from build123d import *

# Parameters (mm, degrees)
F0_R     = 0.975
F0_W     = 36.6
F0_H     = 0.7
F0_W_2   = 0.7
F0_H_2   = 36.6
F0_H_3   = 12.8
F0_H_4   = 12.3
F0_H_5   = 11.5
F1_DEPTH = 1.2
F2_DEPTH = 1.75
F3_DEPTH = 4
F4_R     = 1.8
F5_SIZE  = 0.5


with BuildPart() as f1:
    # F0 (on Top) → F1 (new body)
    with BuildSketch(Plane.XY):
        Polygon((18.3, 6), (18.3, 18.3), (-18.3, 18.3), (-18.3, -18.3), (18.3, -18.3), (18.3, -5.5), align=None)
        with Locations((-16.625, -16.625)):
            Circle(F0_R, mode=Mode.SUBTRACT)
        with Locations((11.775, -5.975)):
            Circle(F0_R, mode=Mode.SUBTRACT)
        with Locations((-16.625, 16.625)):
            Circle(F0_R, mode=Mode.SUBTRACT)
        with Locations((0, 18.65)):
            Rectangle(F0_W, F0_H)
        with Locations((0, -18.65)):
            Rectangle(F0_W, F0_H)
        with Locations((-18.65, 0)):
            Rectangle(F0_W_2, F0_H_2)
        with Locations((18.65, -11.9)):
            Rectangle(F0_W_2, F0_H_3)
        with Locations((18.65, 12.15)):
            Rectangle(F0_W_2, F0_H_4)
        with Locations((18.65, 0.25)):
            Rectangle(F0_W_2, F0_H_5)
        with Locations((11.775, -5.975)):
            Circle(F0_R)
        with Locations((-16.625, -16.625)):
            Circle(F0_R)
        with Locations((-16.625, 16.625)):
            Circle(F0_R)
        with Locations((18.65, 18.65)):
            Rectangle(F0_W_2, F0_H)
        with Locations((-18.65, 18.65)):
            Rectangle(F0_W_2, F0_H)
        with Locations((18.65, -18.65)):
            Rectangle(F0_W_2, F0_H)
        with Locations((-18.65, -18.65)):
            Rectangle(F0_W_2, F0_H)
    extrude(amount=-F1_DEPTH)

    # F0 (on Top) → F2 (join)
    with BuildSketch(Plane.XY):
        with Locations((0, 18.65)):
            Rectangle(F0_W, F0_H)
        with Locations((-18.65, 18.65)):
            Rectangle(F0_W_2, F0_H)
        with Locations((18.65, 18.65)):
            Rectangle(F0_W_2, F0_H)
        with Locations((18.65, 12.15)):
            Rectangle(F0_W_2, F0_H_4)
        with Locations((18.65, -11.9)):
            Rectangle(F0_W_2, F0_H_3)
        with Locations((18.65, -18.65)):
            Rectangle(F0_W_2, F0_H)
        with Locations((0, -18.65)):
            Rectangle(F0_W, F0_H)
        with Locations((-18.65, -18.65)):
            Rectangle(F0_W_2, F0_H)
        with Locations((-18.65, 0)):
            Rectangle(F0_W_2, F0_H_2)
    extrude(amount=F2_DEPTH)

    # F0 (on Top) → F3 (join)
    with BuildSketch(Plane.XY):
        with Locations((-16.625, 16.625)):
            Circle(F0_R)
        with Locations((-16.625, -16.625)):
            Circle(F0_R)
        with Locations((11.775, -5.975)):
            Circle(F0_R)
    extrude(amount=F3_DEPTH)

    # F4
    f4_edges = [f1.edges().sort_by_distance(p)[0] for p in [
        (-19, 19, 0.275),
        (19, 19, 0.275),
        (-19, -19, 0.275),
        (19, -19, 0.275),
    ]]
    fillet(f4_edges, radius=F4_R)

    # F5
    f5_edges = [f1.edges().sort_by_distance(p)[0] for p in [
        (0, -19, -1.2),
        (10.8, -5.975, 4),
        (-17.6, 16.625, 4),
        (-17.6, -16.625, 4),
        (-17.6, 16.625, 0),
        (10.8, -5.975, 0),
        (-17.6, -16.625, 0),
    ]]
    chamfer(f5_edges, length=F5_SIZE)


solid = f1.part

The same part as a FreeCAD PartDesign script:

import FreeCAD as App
import Part
import Sketcher


def edges_at(feature, points):
    """Names of the edges that pass closest to the given points."""
    edges = feature.Shape.Edges
    near = lambda p: min(range(len(edges)), key=lambda i: edges[i].distToShape(Part.Vertex(*p))[0])
    return sorted({f"Edge{near(p) + 1}" for p in points})

doc = App.newDocument("Part")
body = doc.addObject("PartDesign::Body", "Body")

# Sketch on XY plane
sketch1 = body.newObject("Sketcher::SketchObject", "Sketch")
sketch1.AttachmentSupport = (doc.getObject("XY_Plane"), [""])
sketch1.MapMode = "FlatFace"
sketch1.addGeometry([
    Part.LineSegment(App.Vector(19, -19, 0), App.Vector(19, 19, 0)),
    Part.LineSegment(App.Vector(19, 19, 0), App.Vector(-19, 19, 0)),
    Part.LineSegment(App.Vector(-19, 19, 0), App.Vector(-19, -19, 0)),
    Part.LineSegment(App.Vector(-19, -19, 0), App.Vector(19, -19, 0)),
], False)
sketch1.addConstraint([
    Sketcher.Constraint("Coincident", 0, 2, 1, 1),
    Sketcher.Constraint("Coincident", 1, 2, 2, 1),
    Sketcher.Constraint("Coincident", 2, 2, 3, 1),
    Sketcher.Constraint("Coincident", 3, 2, 0, 1),
    Sketcher.Constraint("Vertical", 0),
    Sketcher.Constraint("Horizontal", 1),
    Sketcher.Constraint("Vertical", 2),
    Sketcher.Constraint("Horizontal", 3),
    Sketcher.Constraint("Symmetric", 0, 2, 2, 2, -1, 1),
    Sketcher.Constraint("Equal", 3, 0),
    Sketcher.Constraint("DistanceX", 1, 2, 1, 1, 38.0),
])
pad1 = body.newObject("PartDesign::Pad", "Pad")
pad1.Profile = sketch1
pad1.Length = 1.2
pad1.Reversed = True

# Sketch on XY plane
sketch2 = body.newObject("Sketcher::SketchObject", "Sketch001")
sketch2.AttachmentSupport = (doc.getObject("XY_Plane"), [""])
sketch2.MapMode = "FlatFace"
sketch2.addGeometry([
    Part.LineSegment(App.Vector(-19, 19, 0), App.Vector(-19, -19, 0)),  # 0
    Part.LineSegment(App.Vector(-19, -19, 0), App.Vector(19, -19, 0)),  # 1
    Part.LineSegment(App.Vector(19, -19, 0), App.Vector(19, -5.5, 0)),  # 2
    Part.LineSegment(App.Vector(19, -5.5, 0), App.Vector(18.3, -5.5, 0)),  # 3
    Part.LineSegment(App.Vector(18.3, -5.5, 0), App.Vector(18.3, -18.3, 0)),  # 4
    Part.LineSegment(App.Vector(18.3, -18.3, 0), App.Vector(-18.3, -18.3, 0)),  # 5
    Part.LineSegment(App.Vector(-18.3, -18.3, 0), App.Vector(-18.3, 18.3, 0)),  # 6
    Part.LineSegment(App.Vector(-18.3, 18.3, 0), App.Vector(18.3, 18.3, 0)),  # 7
    Part.LineSegment(App.Vector(18.3, 18.3, 0), App.Vector(18.3, 6, 0)),  # 8
    Part.LineSegment(App.Vector(18.3, 6, 0), App.Vector(19, 6, 0)),  # 9
    Part.LineSegment(App.Vector(19, 6, 0), App.Vector(19, 19, 0)),  # 10
    Part.LineSegment(App.Vector(19, 19, 0), App.Vector(-19, 19, 0)),  # 11
], False)
sketch2.addConstraint([
    Sketcher.Constraint("Coincident", 0, 2, 1, 1),
    Sketcher.Constraint("Coincident", 1, 2, 2, 1),
    Sketcher.Constraint("Coincident", 2, 2, 3, 1),
    Sketcher.Constraint("Coincident", 3, 2, 4, 1),
    Sketcher.Constraint("Coincident", 4, 2, 5, 1),
    Sketcher.Constraint("Coincident", 5, 2, 6, 1),
    Sketcher.Constraint("Coincident", 6, 2, 7, 1),
    Sketcher.Constraint("Coincident", 7, 2, 8, 1),
    Sketcher.Constraint("Coincident", 8, 2, 9, 1),
    Sketcher.Constraint("Coincident", 9, 2, 10, 1),
    Sketcher.Constraint("Coincident", 10, 2, 11, 1),
    Sketcher.Constraint("Coincident", 11, 2, 0, 1),
    Sketcher.Constraint("Vertical", 0),
    Sketcher.Constraint("Horizontal", 1),
    Sketcher.Constraint("Vertical", 2),
    Sketcher.Constraint("Horizontal", 3),
    Sketcher.Constraint("Vertical", 4),
    Sketcher.Constraint("Horizontal", 5),
    Sketcher.Constraint("Vertical", 6),
    Sketcher.Constraint("Horizontal", 7),
    Sketcher.Constraint("Vertical", 8),
    Sketcher.Constraint("Horizontal", 9),
    Sketcher.Constraint("Vertical", 10),
    Sketcher.Constraint("Horizontal", 11),
    Sketcher.Constraint("Symmetric", 4, 2, 6, 2, -1, 1),
    Sketcher.Constraint("Symmetric", 0, 2, 10, 2, -1, 1),
    Sketcher.Constraint("Vertical", 4, 2, 7, 2),
    Sketcher.Constraint("Vertical", 2, 2, 9, 2),
    Sketcher.Constraint("Equal", 11, 0),
    Sketcher.Constraint("Equal", 7, 6),
    Sketcher.Constraint("DistanceX", 1, 1, 1, 2, 38.0),
    Sketcher.Constraint("DistanceY", 10, 1, 10, 2, 13.0),
    Sketcher.Constraint("DistanceX", 3, 2, 3, 1, 0.7),
    Sketcher.Constraint("DistanceY", 2, 1, 2, 2, 13.5),
])
pad2 = body.newObject("PartDesign::Pad", "Pad001")
pad2.Profile = sketch2
pad2.Length = 1.75

# Sketch on XY plane
sketch3 = body.newObject("Sketcher::SketchObject", "Sketch002")
sketch3.AttachmentSupport = (doc.getObject("XY_Plane"), [""])
sketch3.MapMode = "FlatFace"
sketch3.addGeometry([
    Part.Circle(App.Vector(-16.625, 16.625, 0), App.Vector(0, 0, 1), 0.975),
    Part.Circle(App.Vector(-16.625, -16.625, 0), App.Vector(0, 0, 1), 0.975),
    Part.Circle(App.Vector(11.775, -5.975, 0), App.Vector(0, 0, 1), 0.975),
], False)
sketch3.addConstraint([
    Sketcher.Constraint("Equal", 0, 1),
    Sketcher.Constraint("Equal", 1, 2),
    Sketcher.Constraint("Symmetric", 0, 3, 1, 3, -1),
    Sketcher.Constraint("Diameter", 0, 1.95),
    Sketcher.Constraint("DistanceX", 1, 3, 2, 3, 28.4),
    Sketcher.Constraint("DistanceY", 2, 3, 0, 3, 22.6),
    Sketcher.Constraint("DistanceY", 1, 3, 0, 3, 33.25),
    Sketcher.Constraint("DistanceX", 0, 3, -1, 1, 16.625),
])
pad3 = body.newObject("PartDesign::Pad", "Pad002")
pad3.Profile = sketch3
pad3.Length = 4
doc.recompute()

fillet = body.newObject("PartDesign::Fillet", "Fillet")
fillet.Base = (pad3, edges_at(pad3, [
    (-19, 19, 0.275),
    (19, 19, 0.275),
    (-19, -19, 0.275),
    (19, -19, 0.275),
]))
fillet.Radius = 1.8
doc.recompute()

chamfer = body.newObject("PartDesign::Chamfer", "Chamfer")
chamfer.Base = (fillet, edges_at(fillet, [
    (0, -19, -1.2),
    (10.8, -5.975, 4),
    (-17.6, 16.625, 4),
    (-17.6, -16.625, 4),
    (-17.6, 16.625, 0),
    (10.8, -5.975, 0),
    (-17.6, -16.625, 0),
]))
chamfer.Size = 0.5

doc.recompute()
